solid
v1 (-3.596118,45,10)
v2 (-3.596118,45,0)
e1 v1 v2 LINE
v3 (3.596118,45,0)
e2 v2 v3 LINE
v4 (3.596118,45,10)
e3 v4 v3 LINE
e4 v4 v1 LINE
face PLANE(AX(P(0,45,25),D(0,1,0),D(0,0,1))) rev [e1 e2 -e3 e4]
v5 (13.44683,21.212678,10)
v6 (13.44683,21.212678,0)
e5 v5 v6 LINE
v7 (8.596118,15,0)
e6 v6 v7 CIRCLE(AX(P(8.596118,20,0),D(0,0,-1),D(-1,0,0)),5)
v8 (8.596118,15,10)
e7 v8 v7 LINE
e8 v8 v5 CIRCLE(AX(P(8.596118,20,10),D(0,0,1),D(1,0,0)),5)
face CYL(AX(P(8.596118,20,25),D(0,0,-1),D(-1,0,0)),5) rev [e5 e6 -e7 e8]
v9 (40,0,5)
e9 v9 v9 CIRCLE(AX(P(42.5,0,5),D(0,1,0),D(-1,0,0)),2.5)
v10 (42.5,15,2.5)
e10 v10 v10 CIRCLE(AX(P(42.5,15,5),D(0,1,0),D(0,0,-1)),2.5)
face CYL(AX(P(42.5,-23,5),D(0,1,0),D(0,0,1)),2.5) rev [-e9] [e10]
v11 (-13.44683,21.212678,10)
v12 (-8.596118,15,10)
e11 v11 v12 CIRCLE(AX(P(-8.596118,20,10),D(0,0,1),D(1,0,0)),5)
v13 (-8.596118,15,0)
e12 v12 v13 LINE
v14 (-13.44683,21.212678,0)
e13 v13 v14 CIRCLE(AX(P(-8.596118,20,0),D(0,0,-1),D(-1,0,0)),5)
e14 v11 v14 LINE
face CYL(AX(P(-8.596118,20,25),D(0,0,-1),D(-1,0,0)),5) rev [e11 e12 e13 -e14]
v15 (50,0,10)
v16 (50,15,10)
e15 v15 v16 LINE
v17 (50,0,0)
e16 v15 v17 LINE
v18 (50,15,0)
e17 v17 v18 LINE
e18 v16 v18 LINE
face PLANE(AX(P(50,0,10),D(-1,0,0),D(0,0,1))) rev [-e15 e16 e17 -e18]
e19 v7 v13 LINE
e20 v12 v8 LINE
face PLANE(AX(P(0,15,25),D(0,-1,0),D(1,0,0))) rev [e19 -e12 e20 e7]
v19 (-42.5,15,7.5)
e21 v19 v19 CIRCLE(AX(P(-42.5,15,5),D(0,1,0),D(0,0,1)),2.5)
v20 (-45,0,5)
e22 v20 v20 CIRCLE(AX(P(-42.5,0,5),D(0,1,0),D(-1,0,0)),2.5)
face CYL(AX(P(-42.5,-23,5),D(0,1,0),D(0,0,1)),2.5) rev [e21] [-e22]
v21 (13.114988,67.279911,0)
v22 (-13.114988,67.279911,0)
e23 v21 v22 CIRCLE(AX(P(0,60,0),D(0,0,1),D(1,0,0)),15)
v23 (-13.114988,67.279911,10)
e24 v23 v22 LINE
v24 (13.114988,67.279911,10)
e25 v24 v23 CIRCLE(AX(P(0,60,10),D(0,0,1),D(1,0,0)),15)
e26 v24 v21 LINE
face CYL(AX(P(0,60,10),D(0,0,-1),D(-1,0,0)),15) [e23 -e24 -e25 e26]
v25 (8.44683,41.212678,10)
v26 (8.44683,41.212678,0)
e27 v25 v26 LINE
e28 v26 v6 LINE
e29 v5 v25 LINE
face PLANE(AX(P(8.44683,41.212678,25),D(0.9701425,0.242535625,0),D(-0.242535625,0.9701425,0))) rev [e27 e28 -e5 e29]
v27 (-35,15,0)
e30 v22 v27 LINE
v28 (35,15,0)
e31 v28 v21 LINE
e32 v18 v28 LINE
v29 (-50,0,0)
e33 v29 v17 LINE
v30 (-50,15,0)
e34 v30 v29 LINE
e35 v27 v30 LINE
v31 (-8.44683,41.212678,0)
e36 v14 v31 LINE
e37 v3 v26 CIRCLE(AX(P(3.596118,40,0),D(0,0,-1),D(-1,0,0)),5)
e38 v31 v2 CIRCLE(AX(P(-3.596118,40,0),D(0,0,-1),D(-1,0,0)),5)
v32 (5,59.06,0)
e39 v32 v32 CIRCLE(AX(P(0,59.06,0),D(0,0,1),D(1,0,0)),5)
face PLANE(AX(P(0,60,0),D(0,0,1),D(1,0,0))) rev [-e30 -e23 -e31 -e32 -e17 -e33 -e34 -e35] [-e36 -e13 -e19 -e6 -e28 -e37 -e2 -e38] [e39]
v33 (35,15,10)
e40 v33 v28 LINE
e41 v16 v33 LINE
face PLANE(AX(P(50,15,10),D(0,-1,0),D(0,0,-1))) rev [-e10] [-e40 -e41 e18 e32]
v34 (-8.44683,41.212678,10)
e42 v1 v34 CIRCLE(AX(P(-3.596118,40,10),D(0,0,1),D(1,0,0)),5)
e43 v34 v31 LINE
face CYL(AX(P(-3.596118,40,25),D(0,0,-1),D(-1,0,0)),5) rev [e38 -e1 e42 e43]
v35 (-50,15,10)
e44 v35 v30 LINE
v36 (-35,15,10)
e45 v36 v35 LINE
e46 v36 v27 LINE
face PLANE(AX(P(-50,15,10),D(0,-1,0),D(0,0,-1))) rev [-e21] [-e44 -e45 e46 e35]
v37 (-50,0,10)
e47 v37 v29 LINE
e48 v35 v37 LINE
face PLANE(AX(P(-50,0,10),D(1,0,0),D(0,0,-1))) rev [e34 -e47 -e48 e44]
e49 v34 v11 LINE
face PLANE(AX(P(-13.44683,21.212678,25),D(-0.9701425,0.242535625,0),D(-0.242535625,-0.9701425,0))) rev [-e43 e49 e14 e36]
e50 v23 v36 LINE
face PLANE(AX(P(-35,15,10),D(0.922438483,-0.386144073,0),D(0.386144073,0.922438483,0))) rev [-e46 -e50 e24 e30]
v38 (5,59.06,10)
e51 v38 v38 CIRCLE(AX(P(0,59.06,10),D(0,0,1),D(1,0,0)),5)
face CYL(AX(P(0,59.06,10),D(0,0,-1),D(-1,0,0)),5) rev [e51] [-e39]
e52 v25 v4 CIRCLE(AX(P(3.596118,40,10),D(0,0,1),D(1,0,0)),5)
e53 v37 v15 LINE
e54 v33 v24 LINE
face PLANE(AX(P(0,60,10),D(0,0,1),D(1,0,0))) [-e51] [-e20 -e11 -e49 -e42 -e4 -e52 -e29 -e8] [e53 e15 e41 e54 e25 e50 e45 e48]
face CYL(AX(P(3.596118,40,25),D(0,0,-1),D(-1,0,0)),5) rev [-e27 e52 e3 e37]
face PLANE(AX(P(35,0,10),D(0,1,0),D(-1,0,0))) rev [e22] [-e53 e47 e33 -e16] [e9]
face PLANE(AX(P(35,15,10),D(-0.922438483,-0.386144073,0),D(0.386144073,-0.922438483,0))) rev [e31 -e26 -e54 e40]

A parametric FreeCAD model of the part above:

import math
import FreeCAD as App
import Part
import Sketcher
from FreeCAD import Vector

doc = App.newDocument("Part")
params = doc.addObject("Spreadsheet::Sheet", "Params")
for row, (alias, value) in enumerate([
    ("sketch1_diameter", "10 mm"),
    ("sketch1_radius", "15 mm"),
    ("sketch1_width", "15 mm"),
    ("sketch1_width2", "100 mm"),
    ("pad1_length", "10 mm"),
    ("sketch2_radius", "5 mm"),
    ("pocket1_length", "25 mm"),
    ("sketch3_diameter", "5 mm"),
    ("pocket2_length", "38 mm"),
], start=1):
    params.set(f"A{row}", alias)
    params.set(f"B{row}", "=" + value)
    params.setAlias(f"B{row}", alias)

body = doc.addObject("PartDesign::Body", "Body")

# Sketch on XY plane
sketch1 = doc.addObject("Sketcher::SketchObject", "Sketch")
body.addObject(sketch1)
sketch1.AttachmentSupport = (doc.XY_Plane, [""])
sketch1.MapMode = "FlatFace"
sketch1.addGeometry(Part.LineSegment(Vector(35, 15, 0), Vector(13.114988, 67.279911, 0)), False)
sketch1.addGeometry(Part.ArcOfCircle(Part.Circle(Vector(0, 60, 0), Vector(0, 0, 1), 15), math.radians(29.033925), math.radians(150.966075)), False)
sketch1.addGeometry(Part.LineSegment(Vector(-13.114988, 67.279911, 0), Vector(-35, 15, 0)), False)
sketch1.addGeometry(Part.LineSegment(Vector(-35, 15, 0), Vector(-50, 15, 0)), False)
sketch1.addGeometry(Part.LineSegment(Vector(-50, 15, 0), Vector(-50, 0, 0)), False)
sketch1.addGeometry(Part.LineSegment(Vector(-50, 0, 0), Vector(50, 0, 0)), False)
sketch1.addGeometry(Part.LineSegment(Vector(50, 0, 0), Vector(50, 15, 0)), False)
sketch1.addGeometry(Part.LineSegment(Vector(50, 15, 0), Vector(35, 15, 0)), False)
sketch1.addGeometry(Part.Circle(Vector(0, 59.06, 0), Vector(0, 0, 1), 5), False)
sketch1.addConstraint(Sketcher.Constraint("Coincident", 0, 2, 1, 1))
sketch1.addConstraint(Sketcher.Constraint("Coincident", 1, 2, 2, 1))
sketch1.addConstraint(Sketcher.Constraint("Coincident", 2, 2, 3, 1))
sketch1.addConstraint(Sketcher.Constraint("Coincident", 3, 2, 4, 1))
sketch1.addConstraint(Sketcher.Constraint("Coincident", 4, 2, 5, 1))
sketch1.addConstraint(Sketcher.Constraint("Coincident", 5, 2, 6, 1))
sketch1.addConstraint(Sketcher.Constraint("Coincident", 6, 2, 7, 1))
sketch1.addConstraint(Sketcher.Constraint("Coincident", 7, 2, 0, 1))
sketch1.addConstraint(Sketcher.Constraint("Horizontal", 3))
sketch1.addConstraint(Sketcher.Constraint("Vertical", 4))
sketch1.addConstraint(Sketcher.Constraint("Horizontal", 5))
sketch1.addConstraint(Sketcher.Constraint("Vertical", 6))
sketch1.addConstraint(Sketcher.Constraint("Horizontal", 7))
sketch1.addConstraint(Sketcher.Constraint("Symmetric", 4, 2, 5, 2, -1, 1))
sketch1.addConstraint(Sketcher.Constraint("Symmetric", 0, 2, 1, 2, -2))
sketch1.addConstraint(Sketcher.Constraint("Symmetric", 2, 2, 7, 2, -2))
sketch1.addConstraint(Sketcher.Constraint("PointOnObject", 8, 3, -2))
sketch1.addConstraint(Sketcher.Constraint("Equal", 7, 4))
sketch1.addConstraint(Sketcher.Constraint("Diameter", 8, 10.0))
sketch1.addConstraint(Sketcher.Constraint("Radius", 1, 15.0))
sketch1.addConstraint(Sketcher.Constraint("DistanceX", 3, 2, 3, 1, 15.0))
sketch1.addConstraint(Sketcher.Constraint("DistanceX", 5, 1, 5, 2, 100.0))
sketch1.addConstraint(Sketcher.Constraint("DistanceY", -1, 1, 1, 3, 60.0))
sketch1.addConstraint(Sketcher.Constraint("DistanceY", -1, 1, 8, 3, 59.06))
sketch1.addConstraint(Sketcher.Constraint("Distance", 0, 56.67577))
sketch1.setExpression("Constraints[18]", "Params.sketch1_diameter")
sketch1.setExpression("Constraints[19]", "Params.sketch1_radius")
sketch1.setExpression("Constraints[20]", "Params.sketch1_width")
sketch1.setExpression("Constraints[21]", "Params.sketch1_width2")
pad1 = doc.addObject("PartDesign::Pad", "Pad")
body.addObject(pad1)
pad1.Profile = sketch1
pad1.setExpression("Length", "Params.pad1_length")

# Sketch on XY plane
sketch2 = doc.addObject("Sketcher::SketchObject", "Sketch001")
body.addObject(sketch2)
sketch2.AttachmentSupport = (doc.XY_Plane, [""])
sketch2.MapMode = "FlatFace"
sketch2.addGeometry(Part.ArcOfCircle(Part.Circle(Vector(8.596118, 20, 0), Vector(0, 0, 1), 5), math.radians(-90), math.radians(14.036243)), False)
sketch2.addGeometry(Part.LineSegment(Vector(8.596118, 15, 0), Vector(-8.596118, 15, 0)), False)
sketch2.addGeometry(Part.ArcOfCircle(Part.Circle(Vector(-8.596118, 20, 0), Vector(0, 0, 1), 5), math.radians(165.963757), math.radians(270)), False)
sketch2.addGeometry(Part.LineSegment(Vector(-13.44683, 21.212678, 0), Vector(-8.44683, 41.212678, 0)), False)
sketch2.addGeometry(Part.ArcOfCircle(Part.Circle(Vector(-3.596118, 40, 0), Vector(0, 0, 1), 5), math.radians(90), math.radians(165.963757)), False)
sketch2.addGeometry(Part.LineSegment(Vector(-3.596118, 45, 0), Vector(3.596118, 45, 0)), False)
sketch2.addGeometry(Part.ArcOfCircle(Part.Circle(Vector(3.596118, 40, 0), Vector(0, 0, 1), 5), math.radians(14.036243), math.radians(90)), False)
sketch2.addGeometry(Part.LineSegment(Vector(8.44683, 41.212678, 0), Vector(13.44683, 21.212678, 0)), False)
sketch2.addConstraint(Sketcher.Constraint("Tangent", 0, 1, 1, 1))
sketch2.addConstraint(Sketcher.Constraint("Tangent", 1, 2, 2, 2))
sketch2.addConstraint(Sketcher.Constraint("Tangent", 2, 1, 3, 1))
sketch2.addConstraint(Sketcher.Constraint("Tangent", 3, 2, 4, 2))
sketch2.addConstraint(Sketcher.Constraint("Tangent", 4, 1, 5, 1))
sketch2.addConstraint(Sketcher.Constraint("Tangent", 5, 2, 6, 2))
sketch2.addConstraint(Sketcher.Constraint("Tangent", 6, 1, 7, 1))
sketch2.addConstraint(Sketcher.Constraint("Tangent", 7, 2, 0, 2))
sketch2.addConstraint(Sketcher.Constraint("Horizontal", 1))
sketch2.addConstraint(Sketcher.Constraint("Horizontal", 5))
sketch2.addConstraint(Sketcher.Constraint("Equal", 0, 2))
sketch2.addConstraint(Sketcher.Constraint("Equal", 2, 4))
sketch2.addConstraint(Sketcher.Constraint("Equal", 4, 6))
sketch2.addConstraint(Sketcher.Constraint("Symmetric", 3, 2, 6, 1, -2))
sketch2.addConstraint(Sketcher.Constraint("Radius", 0, 5.0))
sketch2.addConstraint(Sketcher.Constraint("DistanceY", -1, 1, 0, 3, 20.0))
sketch2.addConstraint(Sketcher.Constraint("DistanceY", -1, 1, 4, 3, 40.0))
sketch2.addConstraint(Sketcher.Constraint("DistanceX", 2, 3, 4, 3, 5.0))
sketch2.addConstraint(Sketcher.Constraint("DistanceX", 1, 2, 1, 1, 17.192236))
sketch2.setExpression("Constraints[14]", "Params.sketch2_radius")
pocket1 = doc.addObject("PartDesign::Pocket", "Pocket")
body.addObject(pocket1)
pocket1.Profile = sketch2
pocket1.setExpression("Length", "Params.pocket1_length")
pocket1.Reversed = True

# Sketch on XZ plane
sketch3 = doc.addObject("Sketcher::SketchObject", "Sketch002")
body.addObject(sketch3)
sketch3.AttachmentSupport = (doc.XZ_Plane, [""])
sketch3.MapMode = "FlatFace"
sketch3.AttachmentOffset = App.Placement(Vector(0, 0, -15), App.Rotation())
sketch3.addGeometry(Part.Circle(Vector(-42.5, 5, 0), Vector(0, 0, 1), 2.5), False)
sketch3.addGeometry(Part.Circle(Vector(42.5, 5, 0), Vector(0, 0, 1), 2.5), False)
sketch3.addConstraint(Sketcher.Constraint("Equal", 0, 1))
sketch3.addConstraint(Sketcher.Constraint("Symmetric", 0, 3, 1, 3, -2))
sketch3.addConstraint(Sketcher.Constraint("Diameter", 0, 5.0))
sketch3.addConstraint(Sketcher.Constraint("DistanceY", -1, 1, 0, 3, 5.0))
sketch3.addConstraint(Sketcher.Constraint("DistanceX", 0, 3, 1, 3, 85.0))
sketch3.setExpression("Constraints[2]", "Params.sketch3_diameter")
pocket2 = doc.addObject("PartDesign::Pocket", "Pocket001")
body.addObject(pocket2)
pocket2.Profile = sketch3
pocket2.setExpression("Length", "Params.pocket2_length")
pocket2.Reversed = True

doc.recompute()
